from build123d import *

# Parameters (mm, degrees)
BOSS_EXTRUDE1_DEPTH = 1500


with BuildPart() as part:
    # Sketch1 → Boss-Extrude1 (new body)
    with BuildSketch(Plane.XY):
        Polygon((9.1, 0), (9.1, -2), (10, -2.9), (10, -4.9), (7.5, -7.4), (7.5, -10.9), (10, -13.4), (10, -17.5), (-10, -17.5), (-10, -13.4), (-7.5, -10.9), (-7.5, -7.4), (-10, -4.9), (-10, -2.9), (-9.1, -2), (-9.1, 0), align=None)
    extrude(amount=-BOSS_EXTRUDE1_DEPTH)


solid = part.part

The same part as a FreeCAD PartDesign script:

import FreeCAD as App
import Part
import Sketcher

doc = App.newDocument("Part")
body = doc.addObject("PartDesign::Body", "Body")

sketch1 = body.newObject("Sketcher::SketchObject", "Sketch")
sketch1.AttachmentSupport = (doc.getObject("XY_Plane"), [""])
sketch1.MapMode = "FlatFace"
sketch1.addGeometry([
    Part.LineSegment(App.Vector(9.1, -2, 0), App.Vector(9.1, 0, 0)),
    Part.LineSegment(App.Vector(9.1, 0, 0), App.Vector(-9.1, 0, 0)),
    Part.LineSegment(App.Vector(-9.1, 0, 0), App.Vector(-9.1, -2, 0)),
    Part.LineSegment(App.Vector(-9.1, -2, 0), App.Vector(-10, -2.9, 0)),
    Part.LineSegment(App.Vector(-10, -2.9, 0), App.Vector(-10, -4.9, 0)),
    Part.LineSegment(App.Vector(-10, -4.9, 0), App.Vector(-7.5, -7.4, 0)),
    Part.LineSegment(App.Vector(-7.5, -7.4, 0), App.Vector(-7.5, -10.9, 0)),
    Part.LineSegment(App.Vector(-7.5, -10.9, 0), App.Vector(-10, -13.4, 0)),
    Part.LineSegment(App.Vector(-10, -13.4, 0), App.Vector(-10, -17.5, 0)),
    Part.LineSegment(App.Vector(-10, -17.5, 0), App.Vector(10, -17.5, 0)),
    Part.LineSegment(App.Vector(10, -17.5, 0), App.Vector(10, -13.4, 0)),
    Part.LineSegment(App.Vector(10, -13.4, 0), App.Vector(7.5, -10.9, 0)),
    Part.LineSegment(App.Vector(7.5, -10.9, 0), App.Vector(7.5, -7.4, 0)),
    Part.LineSegment(App.Vector(7.5, -7.4, 0), App.Vector(10, -4.9, 0)),
    Part.LineSegment(App.Vector(10, -4.9, 0), App.Vector(10, -2.9, 0)),
    Part.LineSegment(App.Vector(10, -2.9, 0), App.Vector(9.1, -2, 0)),
], False)
sketch1.addConstraint([
    Sketcher.Constraint("Coincident", 0, 2, 1, 1),
    Sketcher.Constraint("Coincident", 1, 2, 2, 1),
    Sketcher.Constraint("Coincident", 2, 2, 3, 1),
    Sketcher.Constraint("Coincident", 3, 2, 4, 1),
    Sketcher.Constraint("Coincident", 4, 2, 5, 1),
    Sketcher.Constraint("Coincident", 5, 2, 6, 1),
    Sketcher.Constraint("Coincident", 6, 2, 7, 1),
    Sketcher.Constraint("Coincident", 7, 2, 8, 1),
    Sketcher.Constraint("Coincident", 8, 2, 9, 1),
    Sketcher.Constraint("Coincident", 9, 2, 10, 1),
    Sketcher.Constraint("Coincident", 10, 2, 11, 1),
    Sketcher.Constraint("Coincident", 11, 2, 12, 1),
    Sketcher.Constraint("Coincident", 12, 2, 13, 1),
    Sketcher.Constraint("Coincident", 13, 2, 14, 1),
    Sketcher.Constraint("Coincident", 14, 2, 15, 1),
    Sketcher.Constraint("Coincident", 15, 2, 0, 1),
    Sketcher.Constraint("Vertical", 0),
    Sketcher.Constraint("Horizontal", 1),
    Sketcher.Constraint("Vertical", 2),
    Sketcher.Constraint("Vertical", 4),
    Sketcher.Constraint("Vertical", 6),
    Sketcher.Constraint("Vertical", 8),
    Sketcher.Constraint("Horizontal", 9),
    Sketcher.Constraint("Vertical", 10),
    Sketcher.Constraint("Vertical", 12),
    Sketcher.Constraint("Vertical", 14),
    Sketcher.Constraint("Symmetric", 0, 2, 1, 2, -1, 1),
    Sketcher.Constraint("Symmetric", 7, 2, 10, 2, -2),
    Sketcher.Constraint("Symmetric", 6, 2, 11, 2, -2),
    Sketcher.Constraint("Symmetric", 4, 2, 13, 2, -2),
    Sketcher.Constraint("Perpendicular", 3, 5),
    Sketcher.Constraint("Perpendicular", 5, 7),
    Sketcher.Constraint("Perpendicular", 7, 11),
    Sketcher.Constraint("Perpendicular", 11, 13),
    Sketcher.Constraint("Perpendicular", 13, 15),
    Sketcher.Constraint("Horizontal", 3, 2, 14, 2),
    Sketcher.Constraint("Vertical", 4, 2, 7, 2),
    Sketcher.Constraint("Equal", 2, 4),
    Sketcher.Constraint("DistanceX", 9, 1, 9, 2, 20.0),
    Sketcher.Constraint("DistanceY", 0, 1, 0, 2, 2.0),
    Sketcher.Constraint("DistanceX", 1, 2, 1, 1, 18.2),
    Sketcher.Constraint("DistanceY", 6, 2, 6, 1, 3.5),
    Sketcher.Constraint("DistanceY", 8, 2, 8, 1, 4.1),
    Sketcher.Constraint("DistanceY", 6, 2, 4, 2, 6.0),
])
pad1 = body.newObject("PartDesign::Pad", "Pad")
pad1.Profile = sketch1
pad1.Length = 1500
pad1.Reversed = True

doc.recompute()
